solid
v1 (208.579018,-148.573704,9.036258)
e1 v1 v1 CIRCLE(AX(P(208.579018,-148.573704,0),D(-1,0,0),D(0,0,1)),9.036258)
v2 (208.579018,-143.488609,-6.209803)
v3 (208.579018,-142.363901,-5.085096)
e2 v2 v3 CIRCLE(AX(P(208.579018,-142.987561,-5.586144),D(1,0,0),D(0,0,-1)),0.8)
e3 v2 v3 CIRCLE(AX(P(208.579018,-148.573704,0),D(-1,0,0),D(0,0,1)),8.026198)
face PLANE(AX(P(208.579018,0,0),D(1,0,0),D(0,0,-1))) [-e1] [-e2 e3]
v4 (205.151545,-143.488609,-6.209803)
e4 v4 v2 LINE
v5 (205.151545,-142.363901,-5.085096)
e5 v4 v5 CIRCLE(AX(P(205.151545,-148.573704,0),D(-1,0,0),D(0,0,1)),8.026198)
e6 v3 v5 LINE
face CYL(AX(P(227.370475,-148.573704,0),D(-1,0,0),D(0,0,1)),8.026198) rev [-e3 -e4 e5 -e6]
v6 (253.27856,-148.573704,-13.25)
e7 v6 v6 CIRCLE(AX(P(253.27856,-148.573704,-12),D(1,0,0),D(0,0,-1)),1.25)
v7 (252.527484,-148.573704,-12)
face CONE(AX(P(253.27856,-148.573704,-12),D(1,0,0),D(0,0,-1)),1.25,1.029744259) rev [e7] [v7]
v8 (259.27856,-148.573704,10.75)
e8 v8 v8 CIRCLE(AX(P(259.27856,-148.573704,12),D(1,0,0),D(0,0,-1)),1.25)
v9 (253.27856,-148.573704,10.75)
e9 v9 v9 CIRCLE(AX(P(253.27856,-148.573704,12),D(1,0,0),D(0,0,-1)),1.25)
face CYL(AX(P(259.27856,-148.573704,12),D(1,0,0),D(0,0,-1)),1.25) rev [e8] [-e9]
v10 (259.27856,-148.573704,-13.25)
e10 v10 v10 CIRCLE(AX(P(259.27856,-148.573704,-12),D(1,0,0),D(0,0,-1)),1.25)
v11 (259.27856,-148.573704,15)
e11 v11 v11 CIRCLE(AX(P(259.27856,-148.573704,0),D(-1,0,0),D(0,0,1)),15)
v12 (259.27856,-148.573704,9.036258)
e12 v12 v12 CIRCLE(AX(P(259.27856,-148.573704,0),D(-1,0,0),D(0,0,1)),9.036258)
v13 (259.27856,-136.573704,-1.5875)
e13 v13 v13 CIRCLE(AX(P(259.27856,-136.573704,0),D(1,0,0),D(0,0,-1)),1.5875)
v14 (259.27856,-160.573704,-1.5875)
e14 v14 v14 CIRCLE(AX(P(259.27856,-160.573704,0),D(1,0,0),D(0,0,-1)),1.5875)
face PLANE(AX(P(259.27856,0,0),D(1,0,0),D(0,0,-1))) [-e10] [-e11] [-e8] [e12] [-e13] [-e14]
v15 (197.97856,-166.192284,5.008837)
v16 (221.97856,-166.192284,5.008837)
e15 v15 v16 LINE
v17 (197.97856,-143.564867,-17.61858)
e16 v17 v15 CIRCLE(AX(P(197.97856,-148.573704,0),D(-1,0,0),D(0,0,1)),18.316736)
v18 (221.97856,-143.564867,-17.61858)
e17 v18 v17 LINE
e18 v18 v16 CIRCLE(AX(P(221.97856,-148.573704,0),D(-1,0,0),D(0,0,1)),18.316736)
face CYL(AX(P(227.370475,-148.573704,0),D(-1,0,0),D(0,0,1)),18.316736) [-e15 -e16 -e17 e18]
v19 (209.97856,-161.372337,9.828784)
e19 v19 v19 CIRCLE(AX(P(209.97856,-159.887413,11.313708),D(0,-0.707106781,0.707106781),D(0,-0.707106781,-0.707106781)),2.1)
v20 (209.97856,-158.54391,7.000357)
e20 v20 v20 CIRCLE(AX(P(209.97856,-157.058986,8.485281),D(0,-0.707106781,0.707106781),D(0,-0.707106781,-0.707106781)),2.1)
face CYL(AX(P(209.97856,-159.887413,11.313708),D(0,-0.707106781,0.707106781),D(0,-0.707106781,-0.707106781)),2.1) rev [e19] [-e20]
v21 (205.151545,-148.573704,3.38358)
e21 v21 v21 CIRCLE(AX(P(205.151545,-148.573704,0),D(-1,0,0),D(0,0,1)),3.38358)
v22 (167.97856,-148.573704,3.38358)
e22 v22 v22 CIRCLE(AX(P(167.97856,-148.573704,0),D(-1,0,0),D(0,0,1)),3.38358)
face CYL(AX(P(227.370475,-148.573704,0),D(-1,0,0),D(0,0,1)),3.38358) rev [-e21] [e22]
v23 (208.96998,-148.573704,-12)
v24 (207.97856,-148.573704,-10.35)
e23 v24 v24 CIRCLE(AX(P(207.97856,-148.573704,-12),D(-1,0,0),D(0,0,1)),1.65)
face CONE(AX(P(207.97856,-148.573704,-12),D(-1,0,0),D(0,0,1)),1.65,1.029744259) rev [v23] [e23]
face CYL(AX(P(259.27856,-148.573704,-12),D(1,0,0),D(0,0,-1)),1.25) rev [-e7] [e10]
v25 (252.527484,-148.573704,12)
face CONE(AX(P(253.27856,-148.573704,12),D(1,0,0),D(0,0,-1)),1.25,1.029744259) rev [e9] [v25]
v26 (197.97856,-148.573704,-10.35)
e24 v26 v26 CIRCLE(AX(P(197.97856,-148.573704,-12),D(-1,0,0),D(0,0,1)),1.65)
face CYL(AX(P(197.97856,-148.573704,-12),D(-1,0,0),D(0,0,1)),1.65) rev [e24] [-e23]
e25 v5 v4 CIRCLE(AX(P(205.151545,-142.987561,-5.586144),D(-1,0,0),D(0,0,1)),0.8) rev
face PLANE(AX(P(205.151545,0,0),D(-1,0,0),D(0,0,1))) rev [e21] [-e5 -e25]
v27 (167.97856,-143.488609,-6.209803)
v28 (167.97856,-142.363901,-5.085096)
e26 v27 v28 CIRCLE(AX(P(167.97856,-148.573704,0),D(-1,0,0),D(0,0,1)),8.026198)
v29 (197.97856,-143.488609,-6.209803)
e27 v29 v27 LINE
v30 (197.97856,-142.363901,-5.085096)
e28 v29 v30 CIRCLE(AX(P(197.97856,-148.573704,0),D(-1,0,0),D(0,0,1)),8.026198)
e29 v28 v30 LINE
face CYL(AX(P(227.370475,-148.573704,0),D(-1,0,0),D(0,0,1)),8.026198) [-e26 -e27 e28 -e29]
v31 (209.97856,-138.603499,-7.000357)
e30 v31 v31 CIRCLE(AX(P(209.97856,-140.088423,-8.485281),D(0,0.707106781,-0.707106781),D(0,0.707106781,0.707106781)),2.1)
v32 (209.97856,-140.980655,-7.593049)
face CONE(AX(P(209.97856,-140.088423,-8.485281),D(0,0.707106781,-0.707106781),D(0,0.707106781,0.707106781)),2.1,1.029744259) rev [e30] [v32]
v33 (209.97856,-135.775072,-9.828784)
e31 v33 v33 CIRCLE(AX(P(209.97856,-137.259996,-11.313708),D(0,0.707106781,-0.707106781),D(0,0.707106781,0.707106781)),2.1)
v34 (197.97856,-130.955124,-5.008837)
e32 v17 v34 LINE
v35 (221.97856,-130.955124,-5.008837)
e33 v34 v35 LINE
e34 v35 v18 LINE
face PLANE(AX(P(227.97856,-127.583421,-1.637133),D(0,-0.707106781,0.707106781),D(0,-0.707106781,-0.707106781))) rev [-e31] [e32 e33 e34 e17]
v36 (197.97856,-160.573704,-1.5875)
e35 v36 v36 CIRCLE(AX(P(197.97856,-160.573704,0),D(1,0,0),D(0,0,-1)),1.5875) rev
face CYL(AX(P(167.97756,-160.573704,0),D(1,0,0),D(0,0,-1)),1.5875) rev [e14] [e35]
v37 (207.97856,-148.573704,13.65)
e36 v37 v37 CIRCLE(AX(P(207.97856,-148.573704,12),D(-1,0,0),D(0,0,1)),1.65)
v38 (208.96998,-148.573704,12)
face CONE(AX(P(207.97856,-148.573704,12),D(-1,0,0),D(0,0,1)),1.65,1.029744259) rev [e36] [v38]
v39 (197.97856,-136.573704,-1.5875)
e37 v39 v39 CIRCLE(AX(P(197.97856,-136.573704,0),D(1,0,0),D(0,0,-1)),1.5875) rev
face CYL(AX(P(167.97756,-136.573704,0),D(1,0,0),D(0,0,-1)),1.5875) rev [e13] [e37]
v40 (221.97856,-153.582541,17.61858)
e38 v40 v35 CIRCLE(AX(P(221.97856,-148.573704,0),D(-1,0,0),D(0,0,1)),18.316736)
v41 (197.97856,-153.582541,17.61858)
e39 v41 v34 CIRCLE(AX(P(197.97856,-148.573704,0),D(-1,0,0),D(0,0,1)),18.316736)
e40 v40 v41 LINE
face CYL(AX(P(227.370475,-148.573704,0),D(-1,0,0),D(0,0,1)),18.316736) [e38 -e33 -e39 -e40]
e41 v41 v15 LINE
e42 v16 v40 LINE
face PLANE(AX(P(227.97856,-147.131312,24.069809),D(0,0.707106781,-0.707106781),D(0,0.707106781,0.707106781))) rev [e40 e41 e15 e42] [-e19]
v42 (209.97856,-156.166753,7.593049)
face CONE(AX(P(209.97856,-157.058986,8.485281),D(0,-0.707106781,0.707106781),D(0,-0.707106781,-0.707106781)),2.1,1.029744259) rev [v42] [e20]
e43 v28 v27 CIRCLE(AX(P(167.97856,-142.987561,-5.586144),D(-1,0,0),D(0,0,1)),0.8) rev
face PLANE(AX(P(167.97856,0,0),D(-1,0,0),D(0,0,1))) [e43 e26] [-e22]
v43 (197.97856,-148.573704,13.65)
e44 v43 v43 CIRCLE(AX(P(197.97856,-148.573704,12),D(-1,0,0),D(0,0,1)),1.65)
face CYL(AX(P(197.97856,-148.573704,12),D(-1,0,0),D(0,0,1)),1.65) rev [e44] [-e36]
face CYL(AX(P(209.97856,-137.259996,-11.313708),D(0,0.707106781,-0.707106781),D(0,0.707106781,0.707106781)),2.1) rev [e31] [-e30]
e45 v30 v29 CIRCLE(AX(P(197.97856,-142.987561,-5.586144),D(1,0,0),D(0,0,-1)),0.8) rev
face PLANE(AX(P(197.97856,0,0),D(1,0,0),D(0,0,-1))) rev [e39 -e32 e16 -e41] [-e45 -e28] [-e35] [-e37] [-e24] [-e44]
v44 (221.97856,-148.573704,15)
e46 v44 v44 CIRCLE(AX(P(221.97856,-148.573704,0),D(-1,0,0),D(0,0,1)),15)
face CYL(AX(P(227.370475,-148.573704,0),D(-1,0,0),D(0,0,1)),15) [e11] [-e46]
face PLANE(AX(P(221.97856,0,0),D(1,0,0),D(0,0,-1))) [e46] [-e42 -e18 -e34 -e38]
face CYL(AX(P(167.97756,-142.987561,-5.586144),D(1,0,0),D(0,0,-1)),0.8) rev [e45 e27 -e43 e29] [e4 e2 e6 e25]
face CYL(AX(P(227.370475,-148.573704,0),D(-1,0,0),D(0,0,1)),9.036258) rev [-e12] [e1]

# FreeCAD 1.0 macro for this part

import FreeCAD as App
import Part
import Sketcher
from FreeCAD import Vector
Q = App.Units.Quantity


def add_polygon(sketch, points):
    """Adds a closed chain of lines whose ends are joined by coincident constraints."""
    first, n = sketch.GeometryCount, len(points)
    for a, b in zip(points, points[1:] + points[:1]):
        sketch.addGeometry(Part.LineSegment(App.Vector(*a, 0), App.Vector(*b, 0)), False)
    for i in range(n):
        sketch.addConstraint(Sketcher.Constraint("Coincident", first + i, 2, first + (i + 1) % n, 1))

doc = App.newDocument("Part")
body = doc.addObject("PartDesign::Body", "Body")

# Sketch on XY plane
sketch1 = body.newObject("Sketcher::SketchObject", "Sketch")
sketch1.AttachmentSupport = (doc.getObject("XY_Plane"), [""])
sketch1.MapMode = "FlatFace"
add_polygon(sketch1, [(208.6, -139.5), (259.3, -139.5), (259.3, -133.6), (222, -133.6), (222, -130.3), (198, -130.3), (198, -140.5), (168, -140.5), (168, -145.2), (205.2, -145.2), (205.2, -140.5), (208.6, -140.5)])  # lines 0-11
sketch1.addGeometry(Part.LineSegment(Vector(168, -148.6, 0), Vector(259.3, -148.6, 0)), True)  # axis
sketch1.addConstraint([
    Sketcher.Constraint("Horizontal", 0),
    Sketcher.Constraint("Vertical", 1),
    Sketcher.Constraint("Horizontal", 2),
    Sketcher.Constraint("Vertical", 3),
    Sketcher.Constraint("Horizontal", 4),
    Sketcher.Constraint("Vertical", 5),
    Sketcher.Constraint("Horizontal", 6),
    Sketcher.Constraint("Vertical", 7),
    Sketcher.Constraint("Horizontal", 8),
    Sketcher.Constraint("Vertical", 9),
    Sketcher.Constraint("Horizontal", 10),
    Sketcher.Constraint("Vertical", 11),
    Sketcher.Constraint("Horizontal", 12),
    Sketcher.Constraint("Horizontal", 6, 2, 9, 2),
    Sketcher.Constraint("Vertical", 7, 2, 12, 1),
    Sketcher.Constraint("Vertical", 1, 2, 12, 2),
    Sketcher.Constraint("DistanceX", 4, 2, 4, 1, 24.0),
    Sketcher.Constraint("DistanceX", 6, 2, 6, 1, 30.0),
    Sketcher.Constraint("DistanceX", 2, 2, 2, 1, 37.3),
    Sketcher.Constraint("DistanceY", 12, 2, 1, 2, 15.0),
    Sketcher.Constraint("DistanceY", 1, 1, 1, 2, 5.963742),
    Sketcher.Constraint("DistanceY", 5, 2, 5, 1, 10.290538),
    Sketcher.Constraint("DistanceY", 11, 1, 11, 2, 1.010061),
    Sketcher.Constraint("DistanceX", 0, 1, 0, 2, 50.699542),
    Sketcher.Constraint("DistanceX", 8, 1, 8, 2, 37.172985),
    Sketcher.Constraint("DistanceY", 7, 2, 7, 1, 4.642618),
    Sketcher.Constraint("DistanceX", -1, 1, 0, 2, 259.27856),
    Sketcher.Constraint("DistanceY", 3, 2, -1, 1, 130.256969),
])
revolution = body.newObject("PartDesign::Revolution", "Revolution")
revolution.Profile = sketch1
revolution.ReferenceAxis = (sketch1, ["Axis0"])
revolution.Angle = 360

# Sketch on YZ plane
sketch2 = body.newObject("Sketcher::SketchObject", "Sketch001")
sketch2.AttachmentSupport = (doc.getObject("YZ_Plane"), [""])
sketch2.MapMode = "FlatFace"
sketch2.AttachmentOffset = App.Placement(Vector(0, 0, 259.27856), App.Rotation())
sketch2.addGeometry(Part.Circle(Vector(-136.6, 0, 0), Vector(0, 0, 1), 1.6), False)
sketch2.addConstraint([
    Sketcher.Constraint("PointOnObject", 0, 3, -1),
    Sketcher.Constraint("Diameter", 0, 3.175),
    Sketcher.Constraint("DistanceX", 0, 3, -1, 1, 136.573704),
])
pocket1 = body.newObject("PartDesign::Pocket", "Pocket")
pocket1.Profile = sketch2
pocket1.Type = "UpToFirst"

# Sketch on YZ plane
sketch3 = body.newObject("Sketcher::SketchObject", "Sketch002")
sketch3.AttachmentSupport = (doc.getObject("YZ_Plane"), [""])
sketch3.MapMode = "FlatFace"
sketch3.AttachmentOffset = App.Placement(Vector(0, 0, 259.27856), App.Rotation())
sketch3.addGeometry(Part.Circle(Vector(-160.6, 0, 0), Vector(0, 0, 1), 1.6), False)
sketch3.addConstraint([
    Sketcher.Constraint("PointOnObject", 0, 3, -1),
    Sketcher.Constraint("Diameter", 0, 3.175),
    Sketcher.Constraint("DistanceX", 0, 3, -1, 1, 160.573704),
])
pocket2 = body.newObject("PartDesign::Pocket", "Pocket001")
pocket2.Profile = sketch3
pocket2.Type = "UpToFirst"

# Sketch on YZ plane
sketch4 = body.newObject("Sketcher::SketchObject", "Sketch003")
sketch4.AttachmentSupport = (doc.getObject("YZ_Plane"), [""])
sketch4.MapMode = "FlatFace"
sketch4.AttachmentOffset = App.Placement(Vector(0, 0, 259.27856), App.Rotation())
sketch4.addGeometry([
    Part.Circle(Vector(-148.6, 12, 0), Vector(0, 0, 1), 1.2),
    Part.Circle(Vector(-148.6, -12, 0), Vector(0, 0, 1), 1.2),
], False)
sketch4.addConstraint([
    Sketcher.Constraint("Equal", 0, 1),
    Sketcher.Constraint("Symmetric", 0, 3, 1, 3, -1),
    Sketcher.Constraint("Diameter", 0, 2.5),
    Sketcher.Constraint("DistanceY", -1, 1, 0, 3, 12.0),
    Sketcher.Constraint("DistanceX", 0, 3, -1, 1, 148.573704),
])
doc.recompute()
hole = body.newObject("PartDesign::Hole", "Hole")
hole.Profile = sketch4
hole.ThreadType = "None"
hole.Diameter = 2.5
hole.DepthType = "Dimension"
hole.Depth = 6
hole.DrillPoint = "Angled"
hole.DrillPointAngle = 118

# Sketch on YZ plane
sketch5 = body.newObject("Sketcher::SketchObject", "Sketch004")
sketch5.AttachmentSupport = (doc.getObject("YZ_Plane"), [""])
sketch5.MapMode = "FlatFace"
sketch5.AttachmentOffset = App.Placement(Vector(0, 0, 197.97856), App.Rotation())
sketch5.addGeometry([
    Part.Circle(Vector(-148.6, -12, 0), Vector(0, 0, 1), 1.6),
    Part.Circle(Vector(-148.6, 12, 0), Vector(0, 0, 1), 1.6),
], False)
sketch5.addConstraint([
    Sketcher.Constraint("Equal", 0, 1),
    Sketcher.Constraint("Symmetric", 0, 3, 1, 3, -1),
    Sketcher.Constraint("Diameter", 0, 3.3),
    Sketcher.Constraint("DistanceY", 0, 3, -1, 1, 12.0),
    Sketcher.Constraint("DistanceX", 0, 3, -1, 1, 148.573704),
])
doc.recompute()
hole2 = body.newObject("PartDesign::Hole", "Hole001")
hole2.Profile = sketch5
hole2.ThreadType = "None"
hole2.Diameter = 3.3
hole2.DepthType = "Dimension"
hole2.Depth = 10
hole2.DrillPoint = "Angled"
hole2.DrillPointAngle = 118
hole2.Reversed = True

# Sketch on YZ plane
sketch6 = body.newObject("Sketcher::SketchObject", "Sketch005")
sketch6.AttachmentSupport = (doc.getObject("YZ_Plane"), [""])
sketch6.MapMode = "FlatFace"
sketch6.AttachmentOffset = App.Placement(Vector(0, 0, 197.97856), App.Rotation())
add_polygon(sketch6, [(-148, -22), (-128, -2), (-137, -22)])  # lines 0-2
add_polygon(sketch6, [(-156, 24), (-147, 24), (-169, 2)])  # lines 3-5
sketch6.addConstraint([
    Sketcher.Constraint("Horizontal", 2),
    Sketcher.Constraint("Horizontal", 3),
    Sketcher.Constraint("Parallel", 0, 4),
    Sketcher.Constraint("Angle", 0, Q("45 deg")),
    Sketcher.Constraint("Distance", 0, 28.254071),
    Sketcher.Constraint("DistanceX", 2, 2, 2, 1, 10.788017),
    Sketcher.Constraint("DistanceX", 3, 1, 3, 2, 8.504067),
    Sketcher.Constraint("DistanceX", 0, 2, -1, 1, 127.583421),
    Sketcher.Constraint("DistanceY", 1, 2, -1, 1, 21.615778),
    Sketcher.Constraint("DistanceY", -1, 1, 3, 2, 24.069809),
    Sketcher.Constraint("DistanceX", 4, 2, -1, 1, 169.217589),
    Sketcher.Constraint("DistanceY", -1, 1, 4, 2, 1.983532),
])
pocket3 = body.newObject("PartDesign::Pocket", "Pocket002")
pocket3.Profile = sketch6
pocket3.Length = 30
pocket3.Reversed = True

# Sketch on YZ plane
sketch7 = body.newObject("Sketcher::SketchObject", "Sketch006")
sketch7.AttachmentSupport = (doc.getObject("YZ_Plane"), [""])
sketch7.MapMode = "FlatFace"
sketch7.AttachmentOffset = App.Placement(Vector(0, 0, 209.97856), App.Rotation())
add_polygon(sketch7, [(-141, -7.6), (-137.3, -11.3), (-135.8, -9.8), (-138.6, -7)])  # lines 0-3
sketch7.addGeometry(Part.LineSegment(Vector(-137.3, -11.3, 0), Vector(-141, -7.6, 0)), True)  # axis
sketch7.addConstraint([
    Sketcher.Constraint("Coincident", 4, 1, 0, 2),
    Sketcher.Constraint("Coincident", 4, 2, 3, 2),
    Sketcher.Constraint("Perpendicular", 0, 1),
    Sketcher.Constraint("Perpendicular", 1, 2),
    Sketcher.Constraint("Angle", 0, Q("-45 deg")),
    Sketcher.Constraint("Angle", 3, Q("-166 deg")),
    Sketcher.Constraint("Distance", 2, 4.0),
    Sketcher.Constraint("Distance", 1, 2.1),
    Sketcher.Constraint("DistanceX", 2, 2, -1, 1, 138.603499),
    Sketcher.Constraint("DistanceY", 0, 2, -1, 1, 11.313708),
])
groove = body.newObject("PartDesign::Groove", "Groove")
groove.Profile = sketch7
groove.ReferenceAxis = (sketch7, ["Axis0"])
groove.Angle = 360
doc.recompute()

datumline = body.newObject("PartDesign::Line", "DatumLine")
datumline.Placement = App.Placement(Vector(0, -148.573704, 0), App.Rotation(Vector(0, 0, 1), Vector(-1, 0, 0)))
polarpattern = body.newObject("PartDesign::PolarPattern", "PolarPattern")
polarpattern.Originals = [groove]
polarpattern.Axis = (datumline, [""])
polarpattern.Angle = 360
polarpattern.Occurrences = 2
body.Tip = polarpattern

# Sketch on YZ plane
sketch8 = body.newObject("Sketcher::SketchObject", "Sketch007")
sketch8.AttachmentSupport = (doc.getObject("YZ_Plane"), [""])
sketch8.MapMode = "FlatFace"
sketch8.AttachmentOffset = App.Placement(Vector(0, 0, 208.579018), App.Rotation())
sketch8.addGeometry(Part.Circle(Vector(-143, -5.6, 0), Vector(0, 0, 1), 0.8), False)
sketch8.addConstraint([
    Sketcher.Constraint("Diameter", 0, 1.6),
    Sketcher.Constraint("DistanceX", 0, 3, -1, 1, 142.987561),
    Sketcher.Constraint("DistanceY", 0, 3, -1, 1, 5.586144),
])
pocket4 = body.newObject("PartDesign::Pocket", "Pocket003")
pocket4.Profile = sketch8
pocket4.Length = 40.600458

doc.recompute()
